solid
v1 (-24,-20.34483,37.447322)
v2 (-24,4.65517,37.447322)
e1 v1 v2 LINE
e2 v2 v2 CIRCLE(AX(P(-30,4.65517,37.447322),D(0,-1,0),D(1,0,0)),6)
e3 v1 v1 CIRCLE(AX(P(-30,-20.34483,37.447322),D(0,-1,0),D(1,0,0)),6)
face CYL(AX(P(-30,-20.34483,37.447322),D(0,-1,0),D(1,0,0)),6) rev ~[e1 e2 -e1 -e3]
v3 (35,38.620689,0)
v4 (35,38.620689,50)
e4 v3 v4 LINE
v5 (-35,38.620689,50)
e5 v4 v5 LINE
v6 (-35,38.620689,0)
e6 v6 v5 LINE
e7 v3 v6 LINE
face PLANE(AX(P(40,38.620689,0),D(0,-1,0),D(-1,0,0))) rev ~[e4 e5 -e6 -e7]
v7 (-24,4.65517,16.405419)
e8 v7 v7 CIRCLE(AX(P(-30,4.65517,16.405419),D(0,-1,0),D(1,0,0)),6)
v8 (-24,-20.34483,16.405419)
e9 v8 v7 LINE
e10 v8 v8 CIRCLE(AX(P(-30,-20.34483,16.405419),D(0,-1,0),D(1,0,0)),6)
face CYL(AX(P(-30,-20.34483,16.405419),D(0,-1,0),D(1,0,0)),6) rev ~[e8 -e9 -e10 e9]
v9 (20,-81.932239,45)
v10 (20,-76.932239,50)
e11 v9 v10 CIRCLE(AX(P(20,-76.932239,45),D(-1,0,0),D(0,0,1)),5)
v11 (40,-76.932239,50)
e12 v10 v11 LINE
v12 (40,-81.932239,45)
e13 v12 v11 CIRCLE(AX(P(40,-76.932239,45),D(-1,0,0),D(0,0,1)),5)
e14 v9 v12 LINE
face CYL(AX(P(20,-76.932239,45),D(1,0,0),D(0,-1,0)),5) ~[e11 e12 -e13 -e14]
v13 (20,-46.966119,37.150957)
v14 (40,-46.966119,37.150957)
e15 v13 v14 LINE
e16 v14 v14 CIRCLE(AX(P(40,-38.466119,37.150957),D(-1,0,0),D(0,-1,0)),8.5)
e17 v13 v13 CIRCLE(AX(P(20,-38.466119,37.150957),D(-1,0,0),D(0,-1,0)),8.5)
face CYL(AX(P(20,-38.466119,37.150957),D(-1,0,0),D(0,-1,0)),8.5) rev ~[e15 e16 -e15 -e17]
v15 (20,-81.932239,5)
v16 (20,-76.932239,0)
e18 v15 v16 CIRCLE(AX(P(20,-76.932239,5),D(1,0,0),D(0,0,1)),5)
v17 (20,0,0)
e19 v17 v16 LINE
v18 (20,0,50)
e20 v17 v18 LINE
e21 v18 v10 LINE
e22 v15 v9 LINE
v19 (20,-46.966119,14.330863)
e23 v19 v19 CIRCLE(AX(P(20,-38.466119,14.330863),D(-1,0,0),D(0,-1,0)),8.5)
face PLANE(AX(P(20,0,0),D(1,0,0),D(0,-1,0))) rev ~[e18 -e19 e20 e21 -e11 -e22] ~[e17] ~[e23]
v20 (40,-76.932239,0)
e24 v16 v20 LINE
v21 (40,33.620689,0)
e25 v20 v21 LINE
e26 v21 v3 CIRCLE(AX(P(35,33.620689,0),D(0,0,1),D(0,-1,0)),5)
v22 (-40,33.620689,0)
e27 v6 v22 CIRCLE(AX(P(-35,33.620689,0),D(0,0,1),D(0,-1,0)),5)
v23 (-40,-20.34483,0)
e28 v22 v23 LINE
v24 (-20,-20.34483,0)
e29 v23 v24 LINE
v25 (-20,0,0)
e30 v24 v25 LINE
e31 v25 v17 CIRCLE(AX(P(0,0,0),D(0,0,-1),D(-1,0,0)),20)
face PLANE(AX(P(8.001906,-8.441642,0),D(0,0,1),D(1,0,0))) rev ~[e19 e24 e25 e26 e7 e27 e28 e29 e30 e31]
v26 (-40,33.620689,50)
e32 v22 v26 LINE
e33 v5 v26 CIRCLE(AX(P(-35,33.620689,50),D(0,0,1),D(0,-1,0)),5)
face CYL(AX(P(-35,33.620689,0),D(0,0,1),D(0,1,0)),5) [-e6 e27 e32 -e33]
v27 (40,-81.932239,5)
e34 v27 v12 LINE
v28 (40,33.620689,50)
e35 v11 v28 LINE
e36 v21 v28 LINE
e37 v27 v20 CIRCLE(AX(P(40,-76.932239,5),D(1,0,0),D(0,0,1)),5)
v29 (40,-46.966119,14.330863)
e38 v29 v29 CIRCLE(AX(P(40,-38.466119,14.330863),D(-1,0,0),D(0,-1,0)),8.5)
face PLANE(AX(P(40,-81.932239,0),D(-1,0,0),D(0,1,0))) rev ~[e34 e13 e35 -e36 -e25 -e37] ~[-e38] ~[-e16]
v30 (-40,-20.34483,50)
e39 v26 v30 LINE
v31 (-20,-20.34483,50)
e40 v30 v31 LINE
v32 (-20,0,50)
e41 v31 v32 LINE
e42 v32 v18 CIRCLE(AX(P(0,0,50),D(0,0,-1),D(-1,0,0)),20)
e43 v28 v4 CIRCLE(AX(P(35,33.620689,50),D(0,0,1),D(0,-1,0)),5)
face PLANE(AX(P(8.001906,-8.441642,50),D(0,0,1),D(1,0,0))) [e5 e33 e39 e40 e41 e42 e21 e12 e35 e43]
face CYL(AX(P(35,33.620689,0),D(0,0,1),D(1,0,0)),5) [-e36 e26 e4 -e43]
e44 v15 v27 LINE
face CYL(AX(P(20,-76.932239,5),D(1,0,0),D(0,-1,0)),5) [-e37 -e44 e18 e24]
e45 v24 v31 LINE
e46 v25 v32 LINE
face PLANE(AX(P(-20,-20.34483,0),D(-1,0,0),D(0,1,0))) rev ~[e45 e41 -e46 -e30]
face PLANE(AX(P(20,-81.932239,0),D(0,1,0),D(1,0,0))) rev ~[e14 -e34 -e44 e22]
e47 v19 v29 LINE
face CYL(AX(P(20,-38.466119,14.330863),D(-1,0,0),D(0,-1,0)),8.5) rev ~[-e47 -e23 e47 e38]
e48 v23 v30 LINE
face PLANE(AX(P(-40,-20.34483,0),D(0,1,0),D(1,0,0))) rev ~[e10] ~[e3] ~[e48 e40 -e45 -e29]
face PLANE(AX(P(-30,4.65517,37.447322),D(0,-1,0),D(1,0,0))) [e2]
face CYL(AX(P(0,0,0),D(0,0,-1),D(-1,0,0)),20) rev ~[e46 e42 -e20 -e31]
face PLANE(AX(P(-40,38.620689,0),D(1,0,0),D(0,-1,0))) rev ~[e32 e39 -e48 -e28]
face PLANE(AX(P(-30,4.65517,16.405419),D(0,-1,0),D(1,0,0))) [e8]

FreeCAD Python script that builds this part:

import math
import FreeCAD as App
import Part
import Sketcher
Q = App.Units.Quantity


def edges_at(feature, points):
    """Names of the edges that pass closest to the given points."""
    edges = feature.Shape.Edges
    near = lambda p: min(range(len(edges)), key=lambda i: edges[i].distToShape(Part.Vertex(*p))[0])
    return sorted({f"Edge{near(p) + 1}" for p in points})

doc = App.newDocument("Part")
params = doc.addObject("Spreadsheet::Sheet", "Params")
for row, (alias, value) in enumerate([
    ("sketch1_radius", "20 mm"),
    ("sketch1_width", "20 mm"),
    ("pad1_length", "50 mm"),
    ("fillet_radius", "5 mm"),
    ("sketch2_diameter", "17 mm"),
    ("sketch3_diameter", "12 mm"),
    ("pocket2_length", "25 mm"),
], start=1):
    params.set(f"A{row}", alias)
    params.set(f"B{row}", "=" + value)
    params.setAlias(f"B{row}", alias)

body = doc.addObject("PartDesign::Body", "Body")

sketch1 = body.newObject("Sketcher::SketchObject", "Sketch")
sketch1.AttachmentSupport = (doc.getObject("XY_Plane"), [""])
sketch1.MapMode = "FlatFace"
sketch1.addGeometry([
    Part.ArcOfCircle(Part.Circle(App.Vector(0, 0, 0), App.Vector(0, 0, 1), 20), math.radians(0), math.radians(180)),
    Part.LineSegment(App.Vector(20, 0, 0), App.Vector(20, -82, 0)),
    Part.LineSegment(App.Vector(20, -82, 0), App.Vector(40, -82, 0)),
    Part.LineSegment(App.Vector(40, -82, 0), App.Vector(40, 39, 0)),
    Part.LineSegment(App.Vector(40, 39, 0), App.Vector(-40, 39, 0)),
    Part.LineSegment(App.Vector(-40, 39, 0), App.Vector(-40, -20, 0)),
    Part.LineSegment(App.Vector(-40, -20, 0), App.Vector(-20, -20, 0)),
    Part.LineSegment(App.Vector(-20, -20, 0), App.Vector(-20, 0, 0)),
], False)
sketch1.addConstraint([
    Sketcher.Constraint("Tangent", 0, 1, 1, 1),
    Sketcher.Constraint("Coincident", 1, 2, 2, 1),
    Sketcher.Constraint("Coincident", 2, 2, 3, 1),
    Sketcher.Constraint("Coincident", 3, 2, 4, 1),
    Sketcher.Constraint("Coincident", 4, 2, 5, 1),
    Sketcher.Constraint("Coincident", 5, 2, 6, 1),
    Sketcher.Constraint("Coincident", 6, 2, 7, 1),
    Sketcher.Constraint("Tangent", 7, 2, 0, 2),
    Sketcher.Constraint("Vertical", 1),
    Sketcher.Constraint("Horizontal", 2),
    Sketcher.Constraint("Vertical", 3),
    Sketcher.Constraint("Horizontal", 4),
    Sketcher.Constraint("Vertical", 5),
    Sketcher.Constraint("Horizontal", 6),
    Sketcher.Constraint("Vertical", 7),
    Sketcher.Constraint("Coincident", 0, 3, -1, 1),
    Sketcher.Constraint("Equal", 2, 6),
    Sketcher.Constraint("Radius", 0, Q("20 mm")),
    Sketcher.Constraint("DistanceX", 2, 1, 2, 2, Q("20 mm")),
    Sketcher.Constraint("DistanceY", 1, 2, 1, 1, Q("81.932239 mm")),
    Sketcher.Constraint("DistanceY", 5, 2, 5, 1, Q("58.965519 mm")),
    Sketcher.Constraint("DistanceY", 7, 1, 7, 2, Q("20.34483 mm")),
])
sketch1.setExpression("Constraints[17]", "Params.sketch1_radius")
sketch1.setExpression("Constraints[18]", "Params.sketch1_width")
pad1 = body.newObject("PartDesign::Pad", "Pad")
pad1.Profile = sketch1
pad1.setExpression("Length", "Params.pad1_length")
doc.recompute()

fillet = body.newObject("PartDesign::Fillet", "Fillet")
fillet.Base = (pad1, edges_at(pad1, [
    (-40, 38.621, 25),
    (40, 38.621, 25),
    (30, -81.932, 50),
    (30, -81.932, 0),
]))
fillet.setExpression("Radius", "Params.fillet_radius")

sketch2 = body.newObject("Sketcher::SketchObject", "Sketch001")
sketch2.AttachmentSupport = (doc.getObject("YZ_Plane"), [""])
sketch2.MapMode = "FlatFace"
sketch2.AttachmentOffset = App.Placement(App.Vector(0, 0, 20), App.Rotation())
sketch2.addGeometry([
    Part.Circle(App.Vector(-38, 37, 0), App.Vector(0, 0, 1), 8),
    Part.Circle(App.Vector(-38, 14, 0), App.Vector(0, 0, 1), 8),
], False)
sketch2.addConstraint([
    Sketcher.Constraint("Equal", 0, 1),
    Sketcher.Constraint("Vertical", 0, 3, 1, 3),
    Sketcher.Constraint("Diameter", 0, Q("17 mm")),
    Sketcher.Constraint("DistanceX", 0, 3, -1, 1, Q("38.466119 mm")),
    Sketcher.Constraint("DistanceY", -1, 1, 0, 3, Q("37.150957 mm")),
    Sketcher.Constraint("DistanceY", -1, 1, 1, 3, Q("14.330863 mm")),
])
sketch2.setExpression("Constraints[2]", "Params.sketch2_diameter")
pocket1 = body.newObject("PartDesign::Pocket", "Pocket")
pocket1.Profile = sketch2
pocket1.Type = "ThroughAll"
pocket1.Reversed = True

sketch3 = body.newObject("Sketcher::SketchObject", "Sketch002")
sketch3.AttachmentSupport = (doc.getObject("XZ_Plane"), [""])
sketch3.MapMode = "FlatFace"
sketch3.AttachmentOffset = App.Placement(App.Vector(0, 0, 20.34483), App.Rotation())
sketch3.addGeometry([
    Part.Circle(App.Vector(-30, 37, 0), App.Vector(0, 0, 1), 6),
    Part.Circle(App.Vector(-30, 16, 0), App.Vector(0, 0, 1), 6),
], False)
sketch3.addConstraint([
    Sketcher.Constraint("Equal", 0, 1),
    Sketcher.Constraint("Vertical", 0, 3, 1, 3),
    Sketcher.Constraint("Diameter", 0, Q("12 mm")),
    Sketcher.Constraint("DistanceX", 0, 3, -1, 1, Q("30 mm")),
    Sketcher.Constraint("DistanceY", -1, 1, 1, 3, Q("16.405419 mm")),
    Sketcher.Constraint("DistanceY", -1, 1, 0, 3, Q("37.447322 mm")),
])
sketch3.setExpression("Constraints[2]", "Params.sketch3_diameter")
pocket2 = body.newObject("PartDesign::Pocket", "Pocket001")
pocket2.Profile = sketch3
pocket2.setExpression("Length", "Params.pocket2_length")

doc.recompute()
